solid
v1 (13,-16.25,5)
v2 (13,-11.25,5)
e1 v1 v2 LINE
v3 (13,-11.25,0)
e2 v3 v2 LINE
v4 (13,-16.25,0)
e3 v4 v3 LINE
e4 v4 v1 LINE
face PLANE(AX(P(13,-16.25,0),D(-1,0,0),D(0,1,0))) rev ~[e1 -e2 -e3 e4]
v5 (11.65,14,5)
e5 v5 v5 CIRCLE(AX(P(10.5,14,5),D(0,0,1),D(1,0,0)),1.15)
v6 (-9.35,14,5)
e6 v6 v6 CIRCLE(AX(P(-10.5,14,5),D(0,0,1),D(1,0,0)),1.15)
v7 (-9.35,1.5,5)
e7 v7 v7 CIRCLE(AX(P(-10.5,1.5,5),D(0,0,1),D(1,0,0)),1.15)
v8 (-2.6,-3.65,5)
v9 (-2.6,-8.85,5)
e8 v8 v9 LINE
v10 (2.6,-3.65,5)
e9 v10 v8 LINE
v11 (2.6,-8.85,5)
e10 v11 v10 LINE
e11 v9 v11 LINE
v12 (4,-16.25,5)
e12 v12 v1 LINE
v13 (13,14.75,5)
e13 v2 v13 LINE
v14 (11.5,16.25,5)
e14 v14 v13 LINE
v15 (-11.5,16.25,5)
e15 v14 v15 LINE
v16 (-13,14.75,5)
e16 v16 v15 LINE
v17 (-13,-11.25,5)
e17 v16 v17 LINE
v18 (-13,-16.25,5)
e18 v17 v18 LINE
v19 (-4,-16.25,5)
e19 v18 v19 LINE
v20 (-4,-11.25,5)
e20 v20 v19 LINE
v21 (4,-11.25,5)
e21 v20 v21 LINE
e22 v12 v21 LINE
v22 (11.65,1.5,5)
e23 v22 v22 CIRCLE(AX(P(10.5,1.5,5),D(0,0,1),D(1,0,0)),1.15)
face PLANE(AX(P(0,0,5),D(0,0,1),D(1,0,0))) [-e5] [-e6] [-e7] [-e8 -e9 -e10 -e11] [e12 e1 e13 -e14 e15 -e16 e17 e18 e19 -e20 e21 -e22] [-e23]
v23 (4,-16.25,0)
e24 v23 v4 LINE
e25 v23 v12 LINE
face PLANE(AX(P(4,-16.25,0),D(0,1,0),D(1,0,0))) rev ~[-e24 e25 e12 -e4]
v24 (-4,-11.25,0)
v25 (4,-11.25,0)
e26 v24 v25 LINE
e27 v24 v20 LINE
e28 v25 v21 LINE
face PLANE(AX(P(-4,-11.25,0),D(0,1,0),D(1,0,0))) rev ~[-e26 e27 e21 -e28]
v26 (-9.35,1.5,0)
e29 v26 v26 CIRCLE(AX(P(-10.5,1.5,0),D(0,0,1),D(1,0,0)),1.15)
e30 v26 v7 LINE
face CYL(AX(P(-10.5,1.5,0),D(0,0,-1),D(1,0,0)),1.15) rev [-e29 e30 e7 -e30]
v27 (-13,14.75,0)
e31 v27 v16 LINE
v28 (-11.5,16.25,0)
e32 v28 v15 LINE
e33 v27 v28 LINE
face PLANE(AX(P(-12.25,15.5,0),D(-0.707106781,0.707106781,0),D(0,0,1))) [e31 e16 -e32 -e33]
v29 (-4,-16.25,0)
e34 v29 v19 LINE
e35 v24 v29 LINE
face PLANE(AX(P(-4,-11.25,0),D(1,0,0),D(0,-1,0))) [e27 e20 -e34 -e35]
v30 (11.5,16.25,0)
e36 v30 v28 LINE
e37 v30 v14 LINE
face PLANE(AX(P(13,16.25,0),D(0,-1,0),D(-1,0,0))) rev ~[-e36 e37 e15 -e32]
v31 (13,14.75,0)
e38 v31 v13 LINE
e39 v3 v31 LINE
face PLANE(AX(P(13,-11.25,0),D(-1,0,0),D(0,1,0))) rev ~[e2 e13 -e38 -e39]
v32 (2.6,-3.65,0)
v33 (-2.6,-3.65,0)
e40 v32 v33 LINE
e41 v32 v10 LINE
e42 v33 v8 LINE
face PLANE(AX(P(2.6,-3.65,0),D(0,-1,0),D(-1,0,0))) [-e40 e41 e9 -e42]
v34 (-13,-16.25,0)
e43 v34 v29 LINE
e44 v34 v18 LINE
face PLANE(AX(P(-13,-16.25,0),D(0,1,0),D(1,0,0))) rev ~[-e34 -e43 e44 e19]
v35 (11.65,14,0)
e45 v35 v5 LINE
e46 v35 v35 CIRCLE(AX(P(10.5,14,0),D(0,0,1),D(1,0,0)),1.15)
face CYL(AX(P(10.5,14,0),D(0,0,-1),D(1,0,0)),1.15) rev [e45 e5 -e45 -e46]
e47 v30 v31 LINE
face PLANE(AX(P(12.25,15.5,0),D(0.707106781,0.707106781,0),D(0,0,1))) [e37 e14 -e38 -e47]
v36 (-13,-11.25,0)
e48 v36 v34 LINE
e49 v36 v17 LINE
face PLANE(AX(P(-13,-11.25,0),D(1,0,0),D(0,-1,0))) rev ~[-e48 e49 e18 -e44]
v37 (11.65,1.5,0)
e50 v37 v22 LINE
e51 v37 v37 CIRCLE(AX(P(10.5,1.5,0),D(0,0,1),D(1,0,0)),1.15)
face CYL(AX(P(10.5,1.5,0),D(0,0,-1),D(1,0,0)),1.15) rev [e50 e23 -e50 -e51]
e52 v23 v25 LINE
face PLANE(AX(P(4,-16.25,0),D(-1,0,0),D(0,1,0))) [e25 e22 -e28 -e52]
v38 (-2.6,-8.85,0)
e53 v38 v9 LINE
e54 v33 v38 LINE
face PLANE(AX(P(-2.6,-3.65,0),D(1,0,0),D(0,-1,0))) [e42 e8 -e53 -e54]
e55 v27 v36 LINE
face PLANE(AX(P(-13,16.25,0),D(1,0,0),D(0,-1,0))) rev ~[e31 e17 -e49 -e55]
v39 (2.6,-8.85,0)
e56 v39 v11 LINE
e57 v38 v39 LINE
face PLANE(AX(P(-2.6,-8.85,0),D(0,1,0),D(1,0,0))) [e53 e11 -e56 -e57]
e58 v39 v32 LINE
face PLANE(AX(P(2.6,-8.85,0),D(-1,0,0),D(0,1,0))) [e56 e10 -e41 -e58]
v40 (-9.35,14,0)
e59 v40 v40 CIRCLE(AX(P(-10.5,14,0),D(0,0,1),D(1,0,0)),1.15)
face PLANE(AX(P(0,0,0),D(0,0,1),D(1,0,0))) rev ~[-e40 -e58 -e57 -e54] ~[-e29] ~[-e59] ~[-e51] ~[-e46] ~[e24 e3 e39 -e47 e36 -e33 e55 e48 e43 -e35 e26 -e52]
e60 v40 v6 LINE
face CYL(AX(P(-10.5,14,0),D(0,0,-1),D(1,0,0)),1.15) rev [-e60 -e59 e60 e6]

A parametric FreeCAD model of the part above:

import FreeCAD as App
import Part
import Sketcher

V = App.Vector
Q = App.Units.Quantity


def edges_at(feature, points):
    """Names of the edges that pass closest to the given points."""
    edges = feature.Shape.Edges
    near = lambda p: min(range(len(edges)), key=lambda i: edges[i].distToShape(Part.Vertex(*p))[0])
    return sorted({f"Edge{near(p) + 1}" for p in points})

doc = App.newDocument("Part")
params = doc.addObject("Spreadsheet::Sheet", "Params")
for row, (alias, value) in enumerate([
    ("sketch1_diameter", "2.3 mm"),
    ("sketch1_width", "9 mm"),
    ("sketch1_width2", "26 mm"),
    ("sketch1_height", "5 mm"),
    ("sketch1_width3", "5.2 mm"),
    ("pad1_length", "5 mm"),
    ("chamfer_size", "1.5 mm"),
], start=1):
    params.set(f"A{row}", alias)
    params.set(f"B{row}", "=" + value)
    params.setAlias(f"B{row}", alias)

body = doc.addObject("PartDesign::Body", "Body")

# Sketch on XY plane
sketch1 = doc.addObject("Sketcher::SketchObject", "Sketch")
body.addObject(sketch1)
sketch1.AttachmentSupport = (doc.XY_Plane, [""])
sketch1.MapMode = "FlatFace"
sketch1.addGeometry([
    Part.LineSegment(V(-13, 16.2, 0), V(-13, -16.2, 0)),  # 0
    Part.LineSegment(V(-13, -16.2, 0), V(-4, -16.2, 0)),  # 1
    Part.LineSegment(V(-4, -16.2, 0), V(-4, -11.2, 0)),  # 2
    Part.LineSegment(V(-4, -11.2, 0), V(4, -11.2, 0)),  # 3
    Part.LineSegment(V(4, -11.2, 0), V(4, -16.2, 0)),  # 4
    Part.LineSegment(V(4, -16.2, 0), V(13, -16.2, 0)),  # 5
    Part.LineSegment(V(13, -16.2, 0), V(13, 16.2, 0)),  # 6
    Part.LineSegment(V(13, 16.2, 0), V(-13, 16.2, 0)),  # 7
    Part.LineSegment(V(2.6, -8.8, 0), V(-2.6, -8.8, 0)),  # 8
    Part.LineSegment(V(-2.6, -8.8, 0), V(-2.6, -3.6, 0)),  # 9
    Part.LineSegment(V(-2.6, -3.6, 0), V(2.6, -3.6, 0)),  # 10
    Part.LineSegment(V(2.6, -3.6, 0), V(2.6, -8.8, 0)),  # 11
    Part.Circle(V(-10.5, 1.5, 0), V(0, 0, 1), 1.1),  # 12
    Part.Circle(V(-10.5, 14, 0), V(0, 0, 1), 1.1),  # 13
    Part.Circle(V(10.5, 1.5, 0), V(0, 0, 1), 1.1),  # 14
    Part.Circle(V(10.5, 14, 0), V(0, 0, 1), 1.1),  # 15
], False)
sketch1.addConstraint([
    Sketcher.Constraint("Coincident", 0, 2, 1, 1),
    Sketcher.Constraint("Coincident", 1, 2, 2, 1),
    Sketcher.Constraint("Coincident", 2, 2, 3, 1),
    Sketcher.Constraint("Coincident", 3, 2, 4, 1),
    Sketcher.Constraint("Coincident", 4, 2, 5, 1),
    Sketcher.Constraint("Coincident", 5, 2, 6, 1),
    Sketcher.Constraint("Coincident", 6, 2, 7, 1),
    Sketcher.Constraint("Coincident", 7, 2, 0, 1),
    Sketcher.Constraint("Coincident", 8, 2, 9, 1),
    Sketcher.Constraint("Coincident", 9, 2, 10, 1),
    Sketcher.Constraint("Coincident", 10, 2, 11, 1),
    Sketcher.Constraint("Coincident", 11, 2, 8, 1),
    Sketcher.Constraint("Vertical", 0),
    Sketcher.Constraint("Horizontal", 1),
    Sketcher.Constraint("Vertical", 2),
    Sketcher.Constraint("Horizontal", 3),
    Sketcher.Constraint("Vertical", 4),
    Sketcher.Constraint("Horizontal", 5),
    Sketcher.Constraint("Vertical", 6),
    Sketcher.Constraint("Horizontal", 7),
    Sketcher.Constraint("Horizontal", 8),
    Sketcher.Constraint("Vertical", 9),
    Sketcher.Constraint("Horizontal", 10),
    Sketcher.Constraint("Vertical", 11),
    Sketcher.Constraint("Equal", 12, 13),
    Sketcher.Constraint("Equal", 13, 14),
    Sketcher.Constraint("Equal", 14, 15),
    Sketcher.Constraint("Symmetric", 0, 2, 6, 2, -1, 1),
    Sketcher.Constraint("Symmetric", 12, 3, 14, 3, -2),
    Sketcher.Constraint("Symmetric", 13, 3, 15, 3, -2),
    Sketcher.Constraint("Symmetric", 1, 2, 4, 2, -2),
    Sketcher.Constraint("Vertical", 12, 3, 13, 3),
    Sketcher.Constraint("Equal", 10, 9),
    Sketcher.Constraint("Diameter", 12, Q("2.3 mm")),
    Sketcher.Constraint("DistanceX", 1, 1, 1, 2, Q("9 mm")),
    Sketcher.Constraint("DistanceX", 7, 2, 7, 1, Q("26 mm")),
    Sketcher.Constraint("DistanceY", 2, 1, 2, 2, Q("5 mm")),
    Sketcher.Constraint("DistanceX", 8, 2, 8, 1, Q("5.2 mm")),
    Sketcher.Constraint("DistanceY", 0, 2, 0, 1, Q("32.5 mm")),
    Sketcher.Constraint("DistanceX", 12, 3, 14, 3, Q("21 mm")),
    Sketcher.Constraint("DistanceY", 12, 3, 13, 3, Q("12.5 mm")),
    Sketcher.Constraint("DistanceY", -1, 1, 13, 3, Q("14 mm")),
    Sketcher.Constraint("DistanceX", 8, 2, -1, 1, Q("2.6 mm")),
    Sketcher.Constraint("DistanceY", 2, 2, 8, 2, Q("2.4 mm")),
])
sketch1.setExpression("Constraints[33]", "Params.sketch1_diameter")
sketch1.setExpression("Constraints[34]", "Params.sketch1_width")
sketch1.setExpression("Constraints[35]", "Params.sketch1_width2")
sketch1.setExpression("Constraints[36]", "Params.sketch1_height")
sketch1.setExpression("Constraints[37]", "Params.sketch1_width3")
pad1 = doc.addObject("PartDesign::Pad", "Pad")
body.addObject(pad1)
pad1.Profile = sketch1
pad1.setExpression("Length", "Params.pad1_length")
doc.recompute()

chamfer = doc.addObject("PartDesign::Chamfer", "Chamfer")
body.addObject(chamfer)
chamfer.Base = (pad1, edges_at(pad1, [(13, 16.25, 2.5), (-13, 16.25, 2.5)]))
chamfer.setExpression("Size", "Params.chamfer_size")

doc.recompute()
